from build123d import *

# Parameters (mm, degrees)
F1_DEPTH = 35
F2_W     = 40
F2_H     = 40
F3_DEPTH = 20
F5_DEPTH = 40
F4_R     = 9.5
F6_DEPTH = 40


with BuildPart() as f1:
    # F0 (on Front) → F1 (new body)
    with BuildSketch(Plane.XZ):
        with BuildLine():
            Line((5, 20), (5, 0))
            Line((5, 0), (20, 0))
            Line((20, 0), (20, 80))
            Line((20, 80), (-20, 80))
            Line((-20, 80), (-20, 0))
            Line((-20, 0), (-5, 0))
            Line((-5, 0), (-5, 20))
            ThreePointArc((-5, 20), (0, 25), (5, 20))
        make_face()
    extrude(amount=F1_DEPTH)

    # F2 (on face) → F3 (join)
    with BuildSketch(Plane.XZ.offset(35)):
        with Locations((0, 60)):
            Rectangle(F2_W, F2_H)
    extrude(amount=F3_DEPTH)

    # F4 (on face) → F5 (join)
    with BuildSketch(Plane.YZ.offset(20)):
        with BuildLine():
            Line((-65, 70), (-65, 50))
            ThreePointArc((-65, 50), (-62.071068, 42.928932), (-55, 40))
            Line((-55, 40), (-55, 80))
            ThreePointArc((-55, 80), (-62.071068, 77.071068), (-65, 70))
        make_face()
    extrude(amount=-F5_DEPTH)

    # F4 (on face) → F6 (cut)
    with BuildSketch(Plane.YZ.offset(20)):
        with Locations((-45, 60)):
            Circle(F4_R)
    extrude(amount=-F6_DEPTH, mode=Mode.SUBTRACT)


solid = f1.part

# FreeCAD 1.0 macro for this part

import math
import FreeCAD as App
import Part
import Sketcher
from FreeCAD import Vector

doc = App.newDocument("Part")
params = doc.addObject("Spreadsheet::Sheet", "Params")
for row, (alias, value) in enumerate([
    ("sketch1_radius", "5 mm"),
    ("sketch1_width", "15 mm"),
    ("sketch1_height", "20 mm"),
    ("sketch1_height2", "80 mm"),
    ("pad1_length", "35 mm"),
    ("sketch2_width", "40 mm"),
    ("pad2_length", "20 mm"),
    ("sketch3_radius", "9.999999 mm"),
    ("sketch3_height", "20 mm"),
    ("pad3_length", "40 mm"),
    ("sketch4_diameter", "19 mm"),
    ("pocket1_length", "40 mm"),
], start=1):
    params.set(f"A{row}", alias)
    params.set(f"B{row}", "=" + value)
    params.setAlias(f"B{row}", alias)

body = doc.addObject("PartDesign::Body", "Body")

# Sketch on XZ plane
sketch1 = doc.addObject("Sketcher::SketchObject", "Sketch")
body.addObject(sketch1)
sketch1.AttachmentSupport = (doc.XZ_Plane, [""])
sketch1.MapMode = "FlatFace"
sketch1.addGeometry(Part.LineSegment(Vector(5, 20, 0), Vector(5, 0, 0)), False)
sketch1.addGeometry(Part.LineSegment(Vector(5, 0, 0), Vector(20, 0, 0)), False)
sketch1.addGeometry(Part.LineSegment(Vector(20, 0, 0), Vector(20, 80, 0)), False)
sketch1.addGeometry(Part.LineSegment(Vector(20, 80, 0), Vector(-20, 80, 0)), False)
sketch1.addGeometry(Part.LineSegment(Vector(-20, 80, 0), Vector(-20, 0, 0)), False)
sketch1.addGeometry(Part.LineSegment(Vector(-20, 0, 0), Vector(-5, 0, 0)), False)
sketch1.addGeometry(Part.LineSegment(Vector(-5, 0, 0), Vector(-5, 20, 0)), False)
sketch1.addGeometry(Part.ArcOfCircle(Part.Circle(Vector(0, 20, 0), Vector(0, 0, 1), 5), math.radians(0), math.radians(180)), False)
sketch1.addConstraint(Sketcher.Constraint("Coincident", 0, 2, 1, 1))
sketch1.addConstraint(Sketcher.Constraint("Coincident", 1, 2, 2, 1))
sketch1.addConstraint(Sketcher.Constraint("Coincident", 2, 2, 3, 1))
sketch1.addConstraint(Sketcher.Constraint("Coincident", 3, 2, 4, 1))
sketch1.addConstraint(Sketcher.Constraint("Coincident", 4, 2, 5, 1))
sketch1.addConstraint(Sketcher.Constraint("Coincident", 5, 2, 6, 1))
sketch1.addConstraint(Sketcher.Constraint("Tangent", 6, 2, 7, 2))
sketch1.addConstraint(Sketcher.Constraint("Tangent", 7, 1, 0, 1))
sketch1.addConstraint(Sketcher.Constraint("Vertical", 0))
sketch1.addConstraint(Sketcher.Constraint("Horizontal", 1))
sketch1.addConstraint(Sketcher.Constraint("Vertical", 2))
sketch1.addConstraint(Sketcher.Constraint("Horizontal", 3))
sketch1.addConstraint(Sketcher.Constraint("Vertical", 4))
sketch1.addConstraint(Sketcher.Constraint("Horizontal", 5))
sketch1.addConstraint(Sketcher.Constraint("Vertical", 6))
sketch1.addConstraint(Sketcher.Constraint("Symmetric", 1, 2, 4, 2, -1, 1))
sketch1.addConstraint(Sketcher.Constraint("Symmetric", 0, 2, 5, 2, -2))
sketch1.addConstraint(Sketcher.Constraint("Radius", 7, 5.0))
sketch1.addConstraint(Sketcher.Constraint("DistanceX", 1, 1, 1, 2, 15.0))
sketch1.addConstraint(Sketcher.Constraint("DistanceY", 0, 2, 0, 1, 20.0))
sketch1.addConstraint(Sketcher.Constraint("DistanceY", 2, 1, 2, 2, 80.0))
sketch1.setExpression("Constraints[17]", "Params.sketch1_radius")
sketch1.setExpression("Constraints[18]", "Params.sketch1_width")
sketch1.setExpression("Constraints[19]", "Params.sketch1_height")
sketch1.setExpression("Constraints[20]", "Params.sketch1_height2")
pad1 = doc.addObject("PartDesign::Pad", "Pad")
body.addObject(pad1)
pad1.Profile = sketch1
pad1.setExpression("Length", "Params.pad1_length")

# Sketch on XZ plane
sketch2 = doc.addObject("Sketcher::SketchObject", "Sketch001")
body.addObject(sketch2)
sketch2.AttachmentSupport = (doc.XZ_Plane, [""])
sketch2.MapMode = "FlatFace"
sketch2.AttachmentOffset = App.Placement(Vector(0, 0, 35), App.Rotation())
sketch2.addGeometry(Part.LineSegment(Vector(-20, 80, 0), Vector(-20, 40, 0)), False)
sketch2.addGeometry(Part.LineSegment(Vector(-20, 40, 0), Vector(20, 40, 0)), False)
sketch2.addGeometry(Part.LineSegment(Vector(20, 40, 0), Vector(20, 80, 0)), False)
sketch2.addGeometry(Part.LineSegment(Vector(20, 80, 0), Vector(-20, 80, 0)), False)
sketch2.addConstraint(Sketcher.Constraint("Coincident", 0, 2, 1, 1))
sketch2.addConstraint(Sketcher.Constraint("Coincident", 1, 2, 2, 1))
sketch2.addConstraint(Sketcher.Constraint("Coincident", 2, 2, 3, 1))
sketch2.addConstraint(Sketcher.Constraint("Coincident", 3, 2, 0, 1))
sketch2.addConstraint(Sketcher.Constraint("Vertical", 0))
sketch2.addConstraint(Sketcher.Constraint("Horizontal", 1))
sketch2.addConstraint(Sketcher.Constraint("Vertical", 2))
sketch2.addConstraint(Sketcher.Constraint("Horizontal", 3))
sketch2.addConstraint(Sketcher.Constraint("Equal", 3, 0))
sketch2.addConstraint(Sketcher.Constraint("DistanceX", 1, 1, 1, 2, 40.0))
sketch2.addConstraint(Sketcher.Constraint("DistanceX", 0, 2, -1, 1, 20.0))
sketch2.addConstraint(Sketcher.Constraint("DistanceY", -1, 1, 0, 2, 40.0))
sketch2.setExpression("Constraints[9]", "Params.sketch2_width")
pad2 = doc.addObject("PartDesign::Pad", "Pad001")
body.addObject(pad2)
pad2.Profile = sketch2
pad2.setExpression("Length", "Params.pad2_length")

# Sketch on YZ plane
sketch3 = doc.addObject("Sketcher::SketchObject", "Sketch002")
body.addObject(sketch3)
sketch3.AttachmentSupport = (doc.YZ_Plane, [""])
sketch3.MapMode = "FlatFace"
sketch3.AttachmentOffset = App.Placement(Vector(0, 0, 20), App.Rotation())
sketch3.addGeometry(Part.LineSegment(Vector(-65, 70, 0), Vector(-65, 50, 0)), False)
sketch3.addGeometry(Part.ArcOfCircle(Part.Circle(Vector(-55, 50, 0), Vector(0, 0, 1), 10), math.radians(180), math.radians(270)), False)
sketch3.addGeometry(Part.LineSegment(Vector(-55, 40, 0), Vector(-55, 80, 0)), False)
sketch3.addGeometry(Part.ArcOfCircle(Part.Circle(Vector(-55, 70, 0), Vector(0, 0, 1), 10), math.radians(90), math.radians(180)), False)
sketch3.addConstraint(Sketcher.Constraint("Tangent", 0, 2, 1, 1))
sketch3.addConstraint(Sketcher.Constraint("Coincident", 1, 2, 2, 1))
sketch3.addConstraint(Sketcher.Constraint("Coincident", 2, 2, 3, 1))
sketch3.addConstraint(Sketcher.Constraint("Tangent", 3, 2, 0, 1))
sketch3.addConstraint(Sketcher.Constraint("Vertical", 0))
sketch3.addConstraint(Sketcher.Constraint("Vertical", 2))
sketch3.addConstraint(Sketcher.Constraint("Equal", 1, 3))
sketch3.addConstraint(Sketcher.Constraint("Vertical", 3, 3, 1, 2))
sketch3.addConstraint(Sketcher.Constraint("Radius", 1, 9.999999))
sketch3.addConstraint(Sketcher.Constraint("DistanceY", 0, 2, 0, 1, 20.0))
sketch3.addConstraint(Sketcher.Constraint("DistanceX", 1, 3, -1, 1, 55.000001))
sketch3.addConstraint(Sketcher.Constraint("DistanceY", -1, 1, 1, 3, 49.999999))
sketch3.setExpression("Constraints[8]", "Params.sketch3_radius")
sketch3.setExpression("Constraints[9]", "Params.sketch3_height")
pad3 = doc.addObject("PartDesign::Pad", "Pad002")
body.addObject(pad3)
pad3.Profile = sketch3
pad3.setExpression("Length", "Params.pad3_length")
pad3.Reversed = True

# Sketch on YZ plane
sketch4 = doc.addObject("Sketcher::SketchObject", "Sketch003")
body.addObject(sketch4)
sketch4.AttachmentSupport = (doc.YZ_Plane, [""])
sketch4.MapMode = "FlatFace"
sketch4.AttachmentOffset = App.Placement(Vector(0, 0, 20), App.Rotation())
sketch4.addGeometry(Part.Circle(Vector(-45, 60, 0), Vector(0, 0, 1), 10), False)
sketch4.addConstraint(Sketcher.Constraint("Diameter", 0, 19.0))
sketch4.addConstraint(Sketcher.Constraint("DistanceX", 0, 3, -1, 1, 45.0))
sketch4.addConstraint(Sketcher.Constraint("DistanceY", -1, 1, 0, 3, 60.0))
sketch4.setExpression("Constraints[0]", "Params.sketch4_diameter")
pocket1 = doc.addObject("PartDesign::Pocket", "Pocket")
body.addObject(pocket1)
pocket1.Profile = sketch4
pocket1.setExpression("Length", "Params.pocket1_length")

doc.recompute()
